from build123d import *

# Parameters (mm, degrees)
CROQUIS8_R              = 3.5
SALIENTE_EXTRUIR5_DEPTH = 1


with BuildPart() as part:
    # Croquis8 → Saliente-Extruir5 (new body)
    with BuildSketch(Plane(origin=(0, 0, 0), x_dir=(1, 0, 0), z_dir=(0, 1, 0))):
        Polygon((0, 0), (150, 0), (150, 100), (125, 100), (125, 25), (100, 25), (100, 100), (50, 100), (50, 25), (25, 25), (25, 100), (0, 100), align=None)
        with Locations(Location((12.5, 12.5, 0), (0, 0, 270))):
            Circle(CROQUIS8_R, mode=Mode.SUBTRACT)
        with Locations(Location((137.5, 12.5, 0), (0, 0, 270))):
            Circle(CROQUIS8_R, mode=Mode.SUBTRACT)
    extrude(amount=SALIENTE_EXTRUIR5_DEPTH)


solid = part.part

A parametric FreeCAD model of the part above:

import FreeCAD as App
import Part
import Sketcher
from FreeCAD import Vector
Q = App.Units.Quantity

doc = App.newDocument("Part")
body = doc.addObject("PartDesign::Body", "Body")

# Sketch on XZ plane
sketch1 = body.newObject("Sketcher::SketchObject", "Sketch")
sketch1.AttachmentSupport = (doc.getObject("XZ_Plane"), [""])
sketch1.MapMode = "FlatFace"
sketch1.addGeometry(Part.LineSegment(Vector(0, 0, 0), Vector(150, 0, 0)), False)
sketch1.addGeometry(Part.LineSegment(Vector(150, 0, 0), Vector(150, -100, 0)), False)
sketch1.addGeometry(Part.LineSegment(Vector(150, -100, 0), Vector(125, -100, 0)), False)
sketch1.addGeometry(Part.LineSegment(Vector(125, -100, 0), Vector(125, -25, 0)), False)
sketch1.addGeometry(Part.LineSegment(Vector(125, -25, 0), Vector(100, -25, 0)), False)
sketch1.addGeometry(Part.LineSegment(Vector(100, -25, 0), Vector(100, -100, 0)), False)
sketch1.addGeometry(Part.LineSegment(Vector(100, -100, 0), Vector(50, -100, 0)), False)
sketch1.addGeometry(Part.LineSegment(Vector(50, -100, 0), Vector(50, -25, 0)), False)
sketch1.addGeometry(Part.LineSegment(Vector(50, -25, 0), Vector(25, -25, 0)), False)
sketch1.addGeometry(Part.LineSegment(Vector(25, -25, 0), Vector(25, -100, 0)), False)
sketch1.addGeometry(Part.LineSegment(Vector(25, -100, 0), Vector(0, -100, 0)), False)
sketch1.addGeometry(Part.LineSegment(Vector(0, -100, 0), Vector(0, 0, 0)), False)
sketch1.addGeometry(Part.Circle(Vector(12.5, -12.5, 0), Vector(0, 0, 1), 3.5), False)
sketch1.addGeometry(Part.Circle(Vector(137.5, -12.5, 0), Vector(0, 0, 1), 3.5), False)
sketch1.addConstraint(Sketcher.Constraint("Coincident", 0, 2, 1, 1))
sketch1.addConstraint(Sketcher.Constraint("Coincident", 1, 2, 2, 1))
sketch1.addConstraint(Sketcher.Constraint("Coincident", 2, 2, 3, 1))
sketch1.addConstraint(Sketcher.Constraint("Coincident", 3, 2, 4, 1))
sketch1.addConstraint(Sketcher.Constraint("Coincident", 4, 2, 5, 1))
sketch1.addConstraint(Sketcher.Constraint("Coincident", 5, 2, 6, 1))
sketch1.addConstraint(Sketcher.Constraint("Coincident", 6, 2, 7, 1))
sketch1.addConstraint(Sketcher.Constraint("Coincident", 7, 2, 8, 1))
sketch1.addConstraint(Sketcher.Constraint("Coincident", 8, 2, 9, 1))
sketch1.addConstraint(Sketcher.Constraint("Coincident", 9, 2, 10, 1))
sketch1.addConstraint(Sketcher.Constraint("Coincident", 10, 2, 11, 1))
sketch1.addConstraint(Sketcher.Constraint("Coincident", 11, 2, 0, 1))
sketch1.addConstraint(Sketcher.Constraint("Horizontal", 0))
sketch1.addConstraint(Sketcher.Constraint("Vertical", 1))
sketch1.addConstraint(Sketcher.Constraint("Horizontal", 2))
sketch1.addConstraint(Sketcher.Constraint("Vertical", 3))
sketch1.addConstraint(Sketcher.Constraint("Horizontal", 4))
sketch1.addConstraint(Sketcher.Constraint("Vertical", 5))
sketch1.addConstraint(Sketcher.Constraint("Horizontal", 6))
sketch1.addConstraint(Sketcher.Constraint("Vertical", 7))
sketch1.addConstraint(Sketcher.Constraint("Horizontal", 8))
sketch1.addConstraint(Sketcher.Constraint("Vertical", 9))
sketch1.addConstraint(Sketcher.Constraint("Horizontal", 10))
sketch1.addConstraint(Sketcher.Constraint("Vertical", 11))
sketch1.addConstraint(Sketcher.Constraint("Coincident", 11, 2, -1, 1))
sketch1.addConstraint(Sketcher.Constraint("Equal", 12, 13))
sketch1.addConstraint(Sketcher.Constraint("Horizontal", 12, 3, 13, 3))
sketch1.addConstraint(Sketcher.Constraint("Horizontal", 2, 2, 5, 2))
sketch1.addConstraint(Sketcher.Constraint("Horizontal", 4, 2, 7, 2))
sketch1.addConstraint(Sketcher.Constraint("Horizontal", 6, 2, 9, 2))
sketch1.addConstraint(Sketcher.Constraint("Equal", 2, 4))
sketch1.addConstraint(Sketcher.Constraint("Equal", 4, 8))
sketch1.addConstraint(Sketcher.Constraint("Equal", 8, 10))
sketch1.addConstraint(Sketcher.Constraint("Diameter", 12, Q("7 mm")))
sketch1.addConstraint(Sketcher.Constraint("DistanceX", 0, 1, 0, 2, Q("150 mm")))
sketch1.addConstraint(Sketcher.Constraint("DistanceX", 2, 2, 2, 1, Q("25 mm")))
sketch1.addConstraint(Sketcher.Constraint("DistanceY", 1, 2, 1, 1, Q("100 mm")))
sketch1.addConstraint(Sketcher.Constraint("DistanceY", 3, 1, 3, 2, Q("75 mm")))
sketch1.addConstraint(Sketcher.Constraint("DistanceX", 12, 3, 13, 3, Q("125 mm")))
sketch1.addConstraint(Sketcher.Constraint("DistanceX", -1, 1, 12, 3, Q("12.5 mm")))
sketch1.addConstraint(Sketcher.Constraint("DistanceY", 12, 3, -1, 1, Q("12.5 mm")))
pad1 = body.newObject("PartDesign::Pad", "Pad")
pad1.Profile = sketch1
pad1.Length = 1
pad1.Reversed = True

doc.recompute()
